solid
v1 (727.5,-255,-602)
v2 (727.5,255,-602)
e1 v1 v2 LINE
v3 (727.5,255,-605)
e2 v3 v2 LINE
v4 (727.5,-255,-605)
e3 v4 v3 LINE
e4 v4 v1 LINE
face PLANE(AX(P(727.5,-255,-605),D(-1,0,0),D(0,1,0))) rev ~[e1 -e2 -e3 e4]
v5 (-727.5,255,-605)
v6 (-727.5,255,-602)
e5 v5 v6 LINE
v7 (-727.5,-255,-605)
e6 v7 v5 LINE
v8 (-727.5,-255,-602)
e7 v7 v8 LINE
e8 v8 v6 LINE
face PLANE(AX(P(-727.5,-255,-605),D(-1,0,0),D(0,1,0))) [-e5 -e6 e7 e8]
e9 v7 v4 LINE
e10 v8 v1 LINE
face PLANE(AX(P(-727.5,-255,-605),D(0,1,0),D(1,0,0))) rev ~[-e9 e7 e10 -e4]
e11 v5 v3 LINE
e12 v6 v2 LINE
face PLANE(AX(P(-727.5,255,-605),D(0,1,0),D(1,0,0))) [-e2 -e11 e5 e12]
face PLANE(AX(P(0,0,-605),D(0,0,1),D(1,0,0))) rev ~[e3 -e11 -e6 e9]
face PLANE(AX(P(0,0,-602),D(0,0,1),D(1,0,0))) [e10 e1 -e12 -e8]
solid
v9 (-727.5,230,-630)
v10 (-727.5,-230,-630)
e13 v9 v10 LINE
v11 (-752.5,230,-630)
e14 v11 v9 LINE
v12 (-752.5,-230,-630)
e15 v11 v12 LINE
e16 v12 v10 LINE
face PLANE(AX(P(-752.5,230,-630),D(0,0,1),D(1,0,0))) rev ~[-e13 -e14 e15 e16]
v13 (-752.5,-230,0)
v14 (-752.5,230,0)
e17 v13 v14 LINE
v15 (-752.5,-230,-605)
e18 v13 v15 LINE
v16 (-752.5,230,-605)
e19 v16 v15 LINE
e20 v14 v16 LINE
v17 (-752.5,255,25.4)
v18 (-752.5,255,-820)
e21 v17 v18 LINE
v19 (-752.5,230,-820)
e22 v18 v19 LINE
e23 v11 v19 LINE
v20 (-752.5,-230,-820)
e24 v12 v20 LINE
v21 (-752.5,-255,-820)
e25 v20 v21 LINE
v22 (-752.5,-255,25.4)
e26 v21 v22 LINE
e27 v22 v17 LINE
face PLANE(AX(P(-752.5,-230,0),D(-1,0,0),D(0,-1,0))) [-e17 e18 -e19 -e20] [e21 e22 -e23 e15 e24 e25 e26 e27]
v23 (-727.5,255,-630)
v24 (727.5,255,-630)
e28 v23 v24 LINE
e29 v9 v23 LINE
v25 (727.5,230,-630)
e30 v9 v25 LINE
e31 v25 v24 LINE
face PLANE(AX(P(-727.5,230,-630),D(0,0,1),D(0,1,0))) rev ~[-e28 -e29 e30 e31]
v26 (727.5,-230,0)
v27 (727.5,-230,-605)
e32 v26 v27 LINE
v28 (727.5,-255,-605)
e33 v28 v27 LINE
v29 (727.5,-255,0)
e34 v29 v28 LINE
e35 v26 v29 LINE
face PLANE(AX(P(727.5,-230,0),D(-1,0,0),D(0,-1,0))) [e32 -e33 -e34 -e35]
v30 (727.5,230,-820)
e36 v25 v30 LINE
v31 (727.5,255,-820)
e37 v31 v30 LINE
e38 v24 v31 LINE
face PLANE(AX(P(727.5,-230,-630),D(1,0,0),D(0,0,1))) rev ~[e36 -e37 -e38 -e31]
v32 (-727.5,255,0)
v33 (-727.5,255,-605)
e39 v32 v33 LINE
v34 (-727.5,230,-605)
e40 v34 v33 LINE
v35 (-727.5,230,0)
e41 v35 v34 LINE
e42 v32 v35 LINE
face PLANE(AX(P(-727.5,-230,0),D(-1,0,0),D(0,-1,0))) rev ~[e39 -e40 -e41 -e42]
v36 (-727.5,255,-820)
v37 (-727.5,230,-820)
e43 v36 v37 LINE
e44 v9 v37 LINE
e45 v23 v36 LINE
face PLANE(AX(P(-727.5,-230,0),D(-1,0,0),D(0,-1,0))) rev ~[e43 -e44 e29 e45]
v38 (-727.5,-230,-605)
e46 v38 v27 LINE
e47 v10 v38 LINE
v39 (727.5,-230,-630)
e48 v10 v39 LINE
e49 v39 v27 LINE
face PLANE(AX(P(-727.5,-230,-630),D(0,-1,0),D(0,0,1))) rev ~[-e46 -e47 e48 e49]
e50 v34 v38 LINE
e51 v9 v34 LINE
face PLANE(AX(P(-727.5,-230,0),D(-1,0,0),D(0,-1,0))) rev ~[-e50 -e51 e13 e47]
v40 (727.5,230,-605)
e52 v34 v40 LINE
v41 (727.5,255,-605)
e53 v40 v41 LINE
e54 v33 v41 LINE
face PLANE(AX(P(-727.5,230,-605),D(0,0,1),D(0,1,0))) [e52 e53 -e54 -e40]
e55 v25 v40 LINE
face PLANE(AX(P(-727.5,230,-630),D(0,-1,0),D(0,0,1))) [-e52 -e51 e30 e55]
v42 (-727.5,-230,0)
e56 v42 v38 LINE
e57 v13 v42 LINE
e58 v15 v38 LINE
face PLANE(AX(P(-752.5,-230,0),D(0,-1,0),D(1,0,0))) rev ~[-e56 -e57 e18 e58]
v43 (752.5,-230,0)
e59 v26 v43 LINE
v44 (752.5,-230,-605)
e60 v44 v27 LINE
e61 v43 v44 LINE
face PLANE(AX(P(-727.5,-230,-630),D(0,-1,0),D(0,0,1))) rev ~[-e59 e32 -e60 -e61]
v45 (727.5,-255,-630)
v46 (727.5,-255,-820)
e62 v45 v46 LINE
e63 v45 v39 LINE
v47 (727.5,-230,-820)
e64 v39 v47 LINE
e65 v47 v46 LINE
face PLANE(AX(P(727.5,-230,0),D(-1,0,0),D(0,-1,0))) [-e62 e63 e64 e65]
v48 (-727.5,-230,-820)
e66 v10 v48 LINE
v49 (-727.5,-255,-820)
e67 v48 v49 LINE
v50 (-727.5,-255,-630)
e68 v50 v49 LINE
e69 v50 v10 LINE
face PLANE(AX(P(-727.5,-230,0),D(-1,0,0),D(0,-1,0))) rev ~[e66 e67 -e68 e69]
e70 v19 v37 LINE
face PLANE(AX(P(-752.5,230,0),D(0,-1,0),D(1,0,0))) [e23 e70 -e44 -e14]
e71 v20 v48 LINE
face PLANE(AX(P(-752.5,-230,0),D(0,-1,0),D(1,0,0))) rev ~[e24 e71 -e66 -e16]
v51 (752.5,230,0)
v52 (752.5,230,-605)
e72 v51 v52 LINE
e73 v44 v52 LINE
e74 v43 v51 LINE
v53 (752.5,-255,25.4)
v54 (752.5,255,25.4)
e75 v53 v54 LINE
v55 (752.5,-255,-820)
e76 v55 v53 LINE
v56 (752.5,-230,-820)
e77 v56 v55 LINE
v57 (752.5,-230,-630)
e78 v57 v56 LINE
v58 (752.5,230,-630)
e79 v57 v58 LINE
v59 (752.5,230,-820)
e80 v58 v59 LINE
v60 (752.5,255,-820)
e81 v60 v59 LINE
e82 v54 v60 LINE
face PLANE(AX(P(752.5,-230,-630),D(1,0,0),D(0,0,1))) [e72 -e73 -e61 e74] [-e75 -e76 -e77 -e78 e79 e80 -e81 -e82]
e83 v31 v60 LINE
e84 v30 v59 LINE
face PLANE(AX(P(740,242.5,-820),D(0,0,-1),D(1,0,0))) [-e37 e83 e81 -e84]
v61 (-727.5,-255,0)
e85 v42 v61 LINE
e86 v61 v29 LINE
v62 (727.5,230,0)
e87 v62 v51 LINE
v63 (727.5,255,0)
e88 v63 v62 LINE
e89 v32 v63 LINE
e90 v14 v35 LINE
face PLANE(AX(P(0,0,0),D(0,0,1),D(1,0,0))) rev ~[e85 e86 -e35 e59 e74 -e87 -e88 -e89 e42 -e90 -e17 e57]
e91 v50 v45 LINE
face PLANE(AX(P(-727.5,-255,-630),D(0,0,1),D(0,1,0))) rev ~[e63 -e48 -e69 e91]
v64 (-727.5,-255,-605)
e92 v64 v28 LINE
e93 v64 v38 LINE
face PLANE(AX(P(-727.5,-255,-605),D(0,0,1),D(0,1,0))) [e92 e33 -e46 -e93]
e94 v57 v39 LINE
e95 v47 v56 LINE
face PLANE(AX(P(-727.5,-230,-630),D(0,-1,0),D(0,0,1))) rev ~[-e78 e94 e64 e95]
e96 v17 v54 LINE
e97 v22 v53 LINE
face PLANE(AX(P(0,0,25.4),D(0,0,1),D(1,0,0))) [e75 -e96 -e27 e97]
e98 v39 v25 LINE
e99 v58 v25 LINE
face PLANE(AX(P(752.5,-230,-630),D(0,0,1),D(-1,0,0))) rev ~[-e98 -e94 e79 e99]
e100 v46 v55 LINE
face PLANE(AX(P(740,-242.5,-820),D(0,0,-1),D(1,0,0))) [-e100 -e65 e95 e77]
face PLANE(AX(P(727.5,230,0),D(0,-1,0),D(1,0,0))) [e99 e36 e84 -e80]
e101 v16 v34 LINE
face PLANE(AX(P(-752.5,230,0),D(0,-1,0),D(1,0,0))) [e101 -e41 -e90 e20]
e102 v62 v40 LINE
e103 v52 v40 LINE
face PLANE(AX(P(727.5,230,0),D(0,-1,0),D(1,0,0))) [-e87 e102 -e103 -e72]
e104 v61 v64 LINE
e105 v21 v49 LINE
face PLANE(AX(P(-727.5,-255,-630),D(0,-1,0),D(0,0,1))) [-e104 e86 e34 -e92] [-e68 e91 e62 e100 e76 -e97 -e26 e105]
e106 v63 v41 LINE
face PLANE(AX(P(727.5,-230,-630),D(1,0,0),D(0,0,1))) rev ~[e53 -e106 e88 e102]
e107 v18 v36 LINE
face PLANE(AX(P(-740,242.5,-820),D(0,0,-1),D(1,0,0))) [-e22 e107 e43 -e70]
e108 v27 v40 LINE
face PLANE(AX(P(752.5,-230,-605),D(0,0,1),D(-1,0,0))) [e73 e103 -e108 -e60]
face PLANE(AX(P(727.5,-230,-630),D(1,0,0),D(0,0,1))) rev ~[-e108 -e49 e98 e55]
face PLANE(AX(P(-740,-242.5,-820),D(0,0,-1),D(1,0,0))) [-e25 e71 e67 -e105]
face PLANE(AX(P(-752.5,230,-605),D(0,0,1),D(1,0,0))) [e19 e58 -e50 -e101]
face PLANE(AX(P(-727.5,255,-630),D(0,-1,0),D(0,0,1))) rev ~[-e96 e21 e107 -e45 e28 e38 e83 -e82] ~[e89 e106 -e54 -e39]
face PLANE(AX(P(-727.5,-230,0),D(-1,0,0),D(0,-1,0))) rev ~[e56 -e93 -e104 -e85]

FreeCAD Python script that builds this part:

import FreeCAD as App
import Part
import Sketcher


def add_polygon(sketch, points):
    """Adds a closed chain of lines whose ends are joined by coincident constraints."""
    first, n = sketch.GeometryCount, len(points)
    for a, b in zip(points, points[1:] + points[:1]):
        sketch.addGeometry(Part.LineSegment(App.Vector(*a, 0), App.Vector(*b, 0)), False)
    for i in range(n):
        sketch.addConstraint(Sketcher.Constraint("Coincident", first + i, 2, first + (i + 1) % n, 1))

doc = App.newDocument("Part")
body = doc.addObject("PartDesign::Body", "Body")

# Sketch on XY plane
sketch1 = body.newObject("Sketcher::SketchObject", "Sketch")
sketch1.AttachmentSupport = (doc.getObject("XY_Plane"), [""])
sketch1.MapMode = "FlatFace"
add_polygon(sketch1, [(-752.5, 255), (-752.5, -255), (752.5, -255), (752.5, 255)])  # lines 0-3
sketch1.addConstraint(Sketcher.Constraint("Vertical", 0))
sketch1.addConstraint(Sketcher.Constraint("Horizontal", 1))
sketch1.addConstraint(Sketcher.Constraint("Vertical", 2))
sketch1.addConstraint(Sketcher.Constraint("Horizontal", 3))
sketch1.addConstraint(Sketcher.Constraint("Symmetric", 0, 2, 2, 2, -1, 1))
sketch1.addConstraint(Sketcher.Constraint("DistanceX", 1, 1, 1, 2, 1505.0))
sketch1.addConstraint(Sketcher.Constraint("DistanceY", 0, 2, 0, 1, 510.0))
pad1 = body.newObject("PartDesign::Pad", "Pad")
pad1.Profile = sketch1
pad1.Length = 25.4

# Sketch on XY plane
sketch2 = body.newObject("Sketcher::SketchObject", "Sketch001")
sketch2.AttachmentSupport = (doc.getObject("XY_Plane"), [""])
sketch2.MapMode = "FlatFace"
add_polygon(sketch2, [(-752.5, -255), (-752.5, -230), (-727.5, -230), (-727.5, -255)])  # lines 0-3
add_polygon(sketch2, [(-752.5, 230), (-752.5, 255), (-727.5, 255), (-727.5, 230)])  # lines 4-7
add_polygon(sketch2, [(727.5, -255), (727.5, -230), (752.5, -230), (752.5, -255)])  # lines 8-11
add_polygon(sketch2, [(727.5, 230), (727.5, 255), (752.5, 255), (752.5, 230)])  # lines 12-15
sketch2.addConstraint(Sketcher.Constraint("Vertical", 0))
sketch2.addConstraint(Sketcher.Constraint("Horizontal", 1))
sketch2.addConstraint(Sketcher.Constraint("Vertical", 2))
sketch2.addConstraint(Sketcher.Constraint("Horizontal", 3))
sketch2.addConstraint(Sketcher.Constraint("Vertical", 4))
sketch2.addConstraint(Sketcher.Constraint("Horizontal", 5))
sketch2.addConstraint(Sketcher.Constraint("Vertical", 6))
sketch2.addConstraint(Sketcher.Constraint("Horizontal", 7))
sketch2.addConstraint(Sketcher.Constraint("Vertical", 8))
sketch2.addConstraint(Sketcher.Constraint("Horizontal", 9))
sketch2.addConstraint(Sketcher.Constraint("Vertical", 10))
sketch2.addConstraint(Sketcher.Constraint("Horizontal", 11))
sketch2.addConstraint(Sketcher.Constraint("Vertical", 12))
sketch2.addConstraint(Sketcher.Constraint("Horizontal", 13))
sketch2.addConstraint(Sketcher.Constraint("Vertical", 14))
sketch2.addConstraint(Sketcher.Constraint("Horizontal", 15))
sketch2.addConstraint(Sketcher.Constraint("Symmetric", 6, 2, 8, 2, -1, 1))
sketch2.addConstraint(Sketcher.Constraint("Symmetric", 4, 2, 10, 2, -1, 1))
sketch2.addConstraint(Sketcher.Constraint("Symmetric", 2, 2, 12, 2, -1, 1))
sketch2.addConstraint(Sketcher.Constraint("Symmetric", 0, 2, 14, 2, -1, 1))
sketch2.addConstraint(Sketcher.Constraint("Symmetric", 1, 2, 8, 2, -2))
sketch2.addConstraint(Sketcher.Constraint("Symmetric", 3, 2, 10, 2, -2))
sketch2.addConstraint(Sketcher.Constraint("Equal", 15, 0))
sketch2.addConstraint(Sketcher.Constraint("DistanceX", 1, 1, 1, 2, 25.0))
sketch2.addConstraint(Sketcher.Constraint("DistanceY", 0, 2, -1, 1, 230.0))
sketch2.addConstraint(Sketcher.Constraint("DistanceX", 1, 2, 8, 2, 1455.0))
pad2 = body.newObject("PartDesign::Pad", "Pad001")
pad2.Profile = sketch2
pad2.Length = 820
pad2.Reversed = True

# Sketch on XZ plane
sketch3 = body.newObject("Sketcher::SketchObject", "Sketch002")
sketch3.AttachmentSupport = (doc.getObject("XZ_Plane"), [""])
sketch3.MapMode = "FlatFace"
sketch3.AttachmentOffset = App.Placement(App.Vector(0, 0, -230), App.Rotation())
add_polygon(sketch3, [(-752.5, -605), (-752.5, -630), (-727.5, -630), (-727.5, -605)])  # lines 0-3
sketch3.addConstraint(Sketcher.Constraint("Vertical", 0))
sketch3.addConstraint(Sketcher.Constraint("Horizontal", 1))
sketch3.addConstraint(Sketcher.Constraint("Vertical", 2))
sketch3.addConstraint(Sketcher.Constraint("Horizontal", 3))
sketch3.addConstraint(Sketcher.Constraint("Equal", 3, 0))
sketch3.addConstraint(Sketcher.Constraint("DistanceX", 1, 1, 1, 2, 25.0))
sketch3.addConstraint(Sketcher.Constraint("DistanceY", 0, 2, -1, 1, 630.0))
sketch3.addConstraint(Sketcher.Constraint("DistanceX", 0, 2, -1, 1, 752.5))
pad3 = body.newObject("PartDesign::Pad", "Pad002")
pad3.Profile = sketch3
pad3.Type = "UpToLast"

# Sketch on YZ plane
sketch4 = body.newObject("Sketcher::SketchObject", "Sketch003")
sketch4.AttachmentSupport = (doc.getObject("YZ_Plane"), [""])
sketch4.MapMode = "FlatFace"
sketch4.AttachmentOffset = App.Placement(App.Vector(0, 0, -727.5), App.Rotation())
add_polygon(sketch4, [(-255, -605), (-255, -630), (-230, -630), (-230, -605)])  # lines 0-3
sketch4.addConstraint(Sketcher.Constraint("Vertical", 0))
sketch4.addConstraint(Sketcher.Constraint("Horizontal", 1))
sketch4.addConstraint(Sketcher.Constraint("Vertical", 2))
sketch4.addConstraint(Sketcher.Constraint("Horizontal", 3))
sketch4.addConstraint(Sketcher.Constraint("Equal", 3, 0))
sketch4.addConstraint(Sketcher.Constraint("DistanceX", 1, 1, 1, 2, 25.0))
sketch4.addConstraint(Sketcher.Constraint("DistanceX", 0, 2, -1, 1, 255.0))
sketch4.addConstraint(Sketcher.Constraint("DistanceY", 0, 2, -1, 1, 630.0))
pad4 = body.newObject("PartDesign::Pad", "Pad003")
pad4.Profile = sketch4
pad4.Type = "UpToLast"

# Sketch on XZ plane
sketch5 = body.newObject("Sketcher::SketchObject", "Sketch004")
sketch5.AttachmentSupport = (doc.getObject("XZ_Plane"), [""])
sketch5.MapMode = "FlatFace"
sketch5.AttachmentOffset = App.Placement(App.Vector(0, 0, 230), App.Rotation())
add_polygon(sketch5, [(752.5, -605), (752.5, -630), (727.5, -630), (727.5, -605)])  # lines 0-3
sketch5.addConstraint(Sketcher.Constraint("Vertical", 0))
sketch5.addConstraint(Sketcher.Constraint("Horizontal", 1))
sketch5.addConstraint(Sketcher.Constraint("Vertical", 2))
sketch5.addConstraint(Sketcher.Constraint("Horizontal", 3))
sketch5.addConstraint(Sketcher.Constraint("Equal", 3, 0))
sketch5.addConstraint(Sketcher.Constraint("DistanceX", 1, 2, 1, 1, 25.0))
sketch5.addConstraint(Sketcher.Constraint("DistanceY", 0, 2, -1, 1, 630.0))
sketch5.addConstraint(Sketcher.Constraint("DistanceX", -1, 1, 0, 2, 752.5))
pad5 = body.newObject("PartDesign::Pad", "Pad004")
pad5.Profile = sketch5
pad5.Type = "UpToLast"
pad5.Reversed = True

# Sketch on YZ plane
sketch6 = body.newObject("Sketcher::SketchObject", "Sketch005")
sketch6.AttachmentSupport = (doc.getObject("YZ_Plane"), [""])
sketch6.MapMode = "FlatFace"
sketch6.AttachmentOffset = App.Placement(App.Vector(0, 0, -727.5), App.Rotation())
add_polygon(sketch6, [(230, -605), (230, -630), (255, -630), (255, -605)])  # lines 0-3
sketch6.addConstraint(Sketcher.Constraint("Vertical", 0))
sketch6.addConstraint(Sketcher.Constraint("Horizontal", 1))
sketch6.addConstraint(Sketcher.Constraint("Vertical", 2))
sketch6.addConstraint(Sketcher.Constraint("Horizontal", 3))
sketch6.addConstraint(Sketcher.Constraint("Equal", 3, 0))
sketch6.addConstraint(Sketcher.Constraint("DistanceX", 1, 1, 1, 2, 25.0))
sketch6.addConstraint(Sketcher.Constraint("DistanceX", -1, 1, 0, 2, 230.0))
sketch6.addConstraint(Sketcher.Constraint("DistanceY", 0, 2, -1, 1, 630.0))
pad6 = body.newObject("PartDesign::Pad", "Pad005")
pad6.Profile = sketch6
pad6.Type = "UpToLast"
body2 = doc.addObject("PartDesign::Body", "Body001")

# Sketch on XY plane
sketch7 = body2.newObject("Sketcher::SketchObject", "Sketch006")
sketch7.AttachmentSupport = (doc.getObject("XY_Plane001"), [""])
sketch7.MapMode = "FlatFace"
sketch7.AttachmentOffset = App.Placement(App.Vector(0, 0, -605), App.Rotation())
add_polygon(sketch7, [(-727.5, 255), (-727.5, -255), (727.5, -255), (727.5, 255)])  # lines 0-3
sketch7.addConstraint(Sketcher.Constraint("Vertical", 0))
sketch7.addConstraint(Sketcher.Constraint("Horizontal", 1))
sketch7.addConstraint(Sketcher.Constraint("Vertical", 2))
sketch7.addConstraint(Sketcher.Constraint("Horizontal", 3))
sketch7.addConstraint(Sketcher.Constraint("Symmetric", 0, 2, 2, 2, -1, 1))
sketch7.addConstraint(Sketcher.Constraint("DistanceX", 1, 1, 1, 2, 1455.0))
sketch7.addConstraint(Sketcher.Constraint("DistanceY", 0, 2, 0, 1, 510.0))
pad7 = body2.newObject("PartDesign::Pad", "Pad006")
pad7.Profile = sketch7
pad7.Length = 3

doc.recompute()
